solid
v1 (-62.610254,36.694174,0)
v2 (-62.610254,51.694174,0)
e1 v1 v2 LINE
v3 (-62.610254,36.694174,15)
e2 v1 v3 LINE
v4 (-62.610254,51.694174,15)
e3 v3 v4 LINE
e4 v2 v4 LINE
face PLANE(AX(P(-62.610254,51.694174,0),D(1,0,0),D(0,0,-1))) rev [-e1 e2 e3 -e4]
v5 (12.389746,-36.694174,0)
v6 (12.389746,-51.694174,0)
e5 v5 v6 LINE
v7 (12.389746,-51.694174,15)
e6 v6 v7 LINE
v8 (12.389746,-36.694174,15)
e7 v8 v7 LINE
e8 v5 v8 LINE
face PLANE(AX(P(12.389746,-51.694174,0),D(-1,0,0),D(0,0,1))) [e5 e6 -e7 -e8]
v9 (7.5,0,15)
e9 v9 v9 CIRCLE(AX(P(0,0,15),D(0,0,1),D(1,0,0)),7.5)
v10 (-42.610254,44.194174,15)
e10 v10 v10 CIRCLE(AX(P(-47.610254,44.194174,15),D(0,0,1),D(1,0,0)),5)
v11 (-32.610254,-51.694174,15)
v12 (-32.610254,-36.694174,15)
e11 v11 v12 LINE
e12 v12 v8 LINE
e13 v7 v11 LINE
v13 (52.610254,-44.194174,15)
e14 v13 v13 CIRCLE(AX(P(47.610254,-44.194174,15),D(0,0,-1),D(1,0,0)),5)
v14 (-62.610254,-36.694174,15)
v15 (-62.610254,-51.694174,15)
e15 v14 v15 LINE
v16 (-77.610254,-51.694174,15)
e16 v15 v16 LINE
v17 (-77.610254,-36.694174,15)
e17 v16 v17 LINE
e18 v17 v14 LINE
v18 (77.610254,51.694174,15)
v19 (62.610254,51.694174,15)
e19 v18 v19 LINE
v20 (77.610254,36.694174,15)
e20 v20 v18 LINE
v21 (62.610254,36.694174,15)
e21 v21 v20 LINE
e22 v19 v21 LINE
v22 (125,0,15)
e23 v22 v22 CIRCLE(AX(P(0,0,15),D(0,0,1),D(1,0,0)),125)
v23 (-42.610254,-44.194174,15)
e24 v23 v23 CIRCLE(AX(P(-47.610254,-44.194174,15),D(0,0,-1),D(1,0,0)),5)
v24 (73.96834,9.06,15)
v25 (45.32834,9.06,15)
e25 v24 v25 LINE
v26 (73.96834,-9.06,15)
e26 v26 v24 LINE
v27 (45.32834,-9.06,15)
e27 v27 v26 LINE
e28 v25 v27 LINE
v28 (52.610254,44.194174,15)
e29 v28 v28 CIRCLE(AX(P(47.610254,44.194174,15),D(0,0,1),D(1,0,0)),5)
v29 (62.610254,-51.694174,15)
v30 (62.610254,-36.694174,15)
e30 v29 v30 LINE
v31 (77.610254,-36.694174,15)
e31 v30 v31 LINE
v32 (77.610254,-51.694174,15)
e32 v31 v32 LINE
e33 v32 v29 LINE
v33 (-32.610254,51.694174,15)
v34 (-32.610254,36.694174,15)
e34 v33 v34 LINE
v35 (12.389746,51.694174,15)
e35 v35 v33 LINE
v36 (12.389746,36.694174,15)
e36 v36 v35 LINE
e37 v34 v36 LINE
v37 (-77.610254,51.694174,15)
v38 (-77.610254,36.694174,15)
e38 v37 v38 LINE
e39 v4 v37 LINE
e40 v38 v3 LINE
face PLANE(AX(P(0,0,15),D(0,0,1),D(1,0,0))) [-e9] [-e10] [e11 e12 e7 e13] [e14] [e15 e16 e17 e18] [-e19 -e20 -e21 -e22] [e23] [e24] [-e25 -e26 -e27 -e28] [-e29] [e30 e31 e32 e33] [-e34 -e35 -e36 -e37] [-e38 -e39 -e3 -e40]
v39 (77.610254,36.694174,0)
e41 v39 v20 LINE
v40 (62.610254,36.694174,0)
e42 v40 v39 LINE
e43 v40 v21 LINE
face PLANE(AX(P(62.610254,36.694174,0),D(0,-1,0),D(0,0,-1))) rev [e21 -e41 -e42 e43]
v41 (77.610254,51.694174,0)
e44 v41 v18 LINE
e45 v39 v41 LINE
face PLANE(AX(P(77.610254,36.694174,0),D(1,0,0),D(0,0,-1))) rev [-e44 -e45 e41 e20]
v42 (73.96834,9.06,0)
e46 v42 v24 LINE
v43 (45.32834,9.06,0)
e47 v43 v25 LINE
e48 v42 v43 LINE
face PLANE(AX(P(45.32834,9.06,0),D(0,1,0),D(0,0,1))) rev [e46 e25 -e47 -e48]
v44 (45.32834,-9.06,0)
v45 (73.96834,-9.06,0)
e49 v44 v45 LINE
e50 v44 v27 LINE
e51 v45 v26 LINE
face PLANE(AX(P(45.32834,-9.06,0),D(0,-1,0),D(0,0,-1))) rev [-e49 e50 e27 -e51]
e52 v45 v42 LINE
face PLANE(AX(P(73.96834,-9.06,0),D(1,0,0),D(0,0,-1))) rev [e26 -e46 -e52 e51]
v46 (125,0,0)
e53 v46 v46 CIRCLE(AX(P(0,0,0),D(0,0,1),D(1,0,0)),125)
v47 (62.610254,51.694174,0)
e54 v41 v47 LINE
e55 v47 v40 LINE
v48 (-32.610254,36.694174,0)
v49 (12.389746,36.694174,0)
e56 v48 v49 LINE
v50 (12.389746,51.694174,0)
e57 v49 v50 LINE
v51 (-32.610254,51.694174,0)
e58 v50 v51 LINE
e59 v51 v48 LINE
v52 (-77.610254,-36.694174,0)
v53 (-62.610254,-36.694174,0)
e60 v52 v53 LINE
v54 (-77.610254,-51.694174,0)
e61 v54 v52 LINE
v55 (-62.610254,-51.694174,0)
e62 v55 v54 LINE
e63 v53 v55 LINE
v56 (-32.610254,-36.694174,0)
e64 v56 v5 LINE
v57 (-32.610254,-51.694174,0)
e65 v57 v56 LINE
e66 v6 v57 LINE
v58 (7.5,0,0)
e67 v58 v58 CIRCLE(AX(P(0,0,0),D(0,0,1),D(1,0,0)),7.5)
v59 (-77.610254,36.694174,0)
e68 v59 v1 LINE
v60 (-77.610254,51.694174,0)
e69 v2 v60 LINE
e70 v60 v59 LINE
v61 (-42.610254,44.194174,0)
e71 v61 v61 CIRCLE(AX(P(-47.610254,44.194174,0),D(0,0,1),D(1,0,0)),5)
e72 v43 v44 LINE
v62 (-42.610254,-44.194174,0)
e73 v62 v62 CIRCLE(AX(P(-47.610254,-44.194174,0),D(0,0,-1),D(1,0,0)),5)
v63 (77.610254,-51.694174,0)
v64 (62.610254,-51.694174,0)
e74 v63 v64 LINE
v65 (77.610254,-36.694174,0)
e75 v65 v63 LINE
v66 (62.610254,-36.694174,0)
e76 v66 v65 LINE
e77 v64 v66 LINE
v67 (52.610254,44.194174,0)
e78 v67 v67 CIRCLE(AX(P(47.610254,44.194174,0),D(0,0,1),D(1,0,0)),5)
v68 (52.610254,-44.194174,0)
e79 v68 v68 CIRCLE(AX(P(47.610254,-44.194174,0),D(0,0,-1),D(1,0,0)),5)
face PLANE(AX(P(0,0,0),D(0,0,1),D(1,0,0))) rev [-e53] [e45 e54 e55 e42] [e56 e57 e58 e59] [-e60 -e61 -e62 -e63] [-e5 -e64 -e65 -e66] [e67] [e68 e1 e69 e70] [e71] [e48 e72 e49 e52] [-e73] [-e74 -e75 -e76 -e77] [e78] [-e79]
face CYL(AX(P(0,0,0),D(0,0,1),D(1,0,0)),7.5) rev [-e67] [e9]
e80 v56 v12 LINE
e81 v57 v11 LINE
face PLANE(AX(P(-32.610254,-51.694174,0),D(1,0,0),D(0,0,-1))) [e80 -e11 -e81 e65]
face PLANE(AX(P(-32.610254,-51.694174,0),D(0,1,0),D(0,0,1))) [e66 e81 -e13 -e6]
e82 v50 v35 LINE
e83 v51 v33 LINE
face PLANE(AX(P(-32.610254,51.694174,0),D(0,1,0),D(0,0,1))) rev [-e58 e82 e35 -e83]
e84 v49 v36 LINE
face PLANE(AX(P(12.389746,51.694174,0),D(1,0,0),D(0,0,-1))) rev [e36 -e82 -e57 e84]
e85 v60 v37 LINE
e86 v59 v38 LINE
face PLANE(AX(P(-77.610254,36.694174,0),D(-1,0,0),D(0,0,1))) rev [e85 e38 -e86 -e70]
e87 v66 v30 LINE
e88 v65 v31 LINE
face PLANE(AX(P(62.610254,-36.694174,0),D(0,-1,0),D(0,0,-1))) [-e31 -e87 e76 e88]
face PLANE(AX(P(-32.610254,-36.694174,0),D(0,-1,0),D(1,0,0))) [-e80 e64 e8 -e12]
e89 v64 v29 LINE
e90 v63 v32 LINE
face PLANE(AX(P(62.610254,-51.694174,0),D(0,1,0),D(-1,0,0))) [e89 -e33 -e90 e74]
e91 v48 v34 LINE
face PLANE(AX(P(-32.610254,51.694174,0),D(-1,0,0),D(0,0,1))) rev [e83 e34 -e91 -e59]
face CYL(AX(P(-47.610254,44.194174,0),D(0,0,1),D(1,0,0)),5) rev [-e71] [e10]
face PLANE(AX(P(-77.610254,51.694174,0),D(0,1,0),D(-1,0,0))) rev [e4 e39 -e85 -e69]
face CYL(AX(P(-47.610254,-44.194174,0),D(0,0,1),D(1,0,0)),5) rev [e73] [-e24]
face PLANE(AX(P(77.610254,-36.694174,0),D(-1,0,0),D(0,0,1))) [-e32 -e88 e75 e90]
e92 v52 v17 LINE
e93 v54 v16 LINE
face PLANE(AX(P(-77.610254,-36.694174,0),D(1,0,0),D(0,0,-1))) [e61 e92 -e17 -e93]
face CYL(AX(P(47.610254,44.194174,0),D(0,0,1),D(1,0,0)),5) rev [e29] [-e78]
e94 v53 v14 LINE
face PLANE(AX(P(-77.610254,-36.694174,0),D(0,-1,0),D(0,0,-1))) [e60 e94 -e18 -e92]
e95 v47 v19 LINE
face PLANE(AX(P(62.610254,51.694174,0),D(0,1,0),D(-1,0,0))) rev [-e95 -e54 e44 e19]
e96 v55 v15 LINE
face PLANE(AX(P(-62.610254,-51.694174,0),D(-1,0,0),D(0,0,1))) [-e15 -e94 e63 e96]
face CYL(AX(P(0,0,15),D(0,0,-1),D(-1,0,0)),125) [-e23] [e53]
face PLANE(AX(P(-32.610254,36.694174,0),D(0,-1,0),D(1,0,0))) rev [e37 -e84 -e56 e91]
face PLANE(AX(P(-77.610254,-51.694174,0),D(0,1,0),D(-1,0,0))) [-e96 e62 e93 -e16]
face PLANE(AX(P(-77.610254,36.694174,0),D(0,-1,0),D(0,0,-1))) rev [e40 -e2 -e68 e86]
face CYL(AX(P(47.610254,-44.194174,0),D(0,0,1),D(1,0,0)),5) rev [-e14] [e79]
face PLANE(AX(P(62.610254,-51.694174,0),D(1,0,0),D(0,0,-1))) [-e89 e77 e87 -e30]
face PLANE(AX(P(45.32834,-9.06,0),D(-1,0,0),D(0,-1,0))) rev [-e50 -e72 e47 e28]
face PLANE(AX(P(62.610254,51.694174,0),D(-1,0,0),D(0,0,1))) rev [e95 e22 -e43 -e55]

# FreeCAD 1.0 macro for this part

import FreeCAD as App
import Part
import Sketcher

V = App.Vector
Q = App.Units.Quantity

doc = App.newDocument("Part")
body = doc.addObject("PartDesign::Body", "Body")

# Sketch on XY plane
sketch1 = doc.addObject("Sketcher::SketchObject", "Sketch")
body.addObject(sketch1)
sketch1.AttachmentSupport = (doc.XY_Plane, [""])
sketch1.MapMode = "FlatFace"
sketch1.addGeometry(Part.Circle(V(0, 0, 0), V(0, 0, 1), 125), False)
sketch1.addConstraint(Sketcher.Constraint("Coincident", 0, 3, -1, 1))
sketch1.addConstraint(Sketcher.Constraint("Diameter", 0, Q("250 mm")))
pad1 = doc.addObject("PartDesign::Pad", "Pad")
body.addObject(pad1)
pad1.Profile = sketch1
pad1.Length = 15

# Sketch on XY plane
sketch2 = doc.addObject("Sketcher::SketchObject", "Sketch001")
body.addObject(sketch2)
sketch2.AttachmentSupport = (doc.XY_Plane, [""])
sketch2.MapMode = "FlatFace"
sketch2.AttachmentOffset = App.Placement(V(0, 0, 15), App.Rotation())
sketch2.addGeometry(Part.Circle(V(0, 0, 0), V(0, 0, 1), 8), False)
sketch2.addGeometry(Part.Circle(V(48, 44, 0), V(0, 0, 1), 5), False)
sketch2.addGeometry(Part.Circle(V(-48, 44, 0), V(0, 0, 1), 5), False)
sketch2.addGeometry(Part.LineSegment(V(63, 52, 0), V(63, 37, 0)), False)
sketch2.addGeometry(Part.LineSegment(V(63, 37, 0), V(78, 37, 0)), False)
sketch2.addGeometry(Part.LineSegment(V(78, 37, 0), V(78, 52, 0)), False)
sketch2.addGeometry(Part.LineSegment(V(78, 52, 0), V(63, 52, 0)), False)
sketch2.addGeometry(Part.LineSegment(V(-78, 52, 0), V(-78, 37, 0)), False)
sketch2.addGeometry(Part.LineSegment(V(-78, 37, 0), V(-63, 37, 0)), False)
sketch2.addGeometry(Part.LineSegment(V(-63, 37, 0), V(-63, 52, 0)), False)
sketch2.addGeometry(Part.LineSegment(V(-63, 52, 0), V(-78, 52, 0)), False)
sketch2.addGeometry(Part.LineSegment(V(45, 9, 0), V(45, -9, 0)), False)
sketch2.addGeometry(Part.LineSegment(V(45, -9, 0), V(74, -9, 0)), False)
sketch2.addGeometry(Part.LineSegment(V(74, -9, 0), V(74, 9, 0)), False)
sketch2.addGeometry(Part.LineSegment(V(74, 9, 0), V(45, 9, 0)), False)
sketch2.addGeometry(Part.LineSegment(V(-33, 52, 0), V(-33, 37, 0)), False)
sketch2.addGeometry(Part.LineSegment(V(-33, 37, 0), V(12, 37, 0)), False)
sketch2.addGeometry(Part.LineSegment(V(12, 37, 0), V(12, 52, 0)), False)
sketch2.addGeometry(Part.LineSegment(V(12, 52, 0), V(-33, 52, 0)), False)
sketch2.addConstraint(Sketcher.Constraint("Coincident", 3, 2, 4, 1))
sketch2.addConstraint(Sketcher.Constraint("Coincident", 4, 2, 5, 1))
sketch2.addConstraint(Sketcher.Constraint("Coincident", 5, 2, 6, 1))
sketch2.addConstraint(Sketcher.Constraint("Coincident", 6, 2, 3, 1))
sketch2.addConstraint(Sketcher.Constraint("Coincident", 7, 2, 8, 1))
sketch2.addConstraint(Sketcher.Constraint("Coincident", 8, 2, 9, 1))
sketch2.addConstraint(Sketcher.Constraint("Coincident", 9, 2, 10, 1))
sketch2.addConstraint(Sketcher.Constraint("Coincident", 10, 2, 7, 1))
sketch2.addConstraint(Sketcher.Constraint("Coincident", 11, 2, 12, 1))
sketch2.addConstraint(Sketcher.Constraint("Coincident", 12, 2, 13, 1))
sketch2.addConstraint(Sketcher.Constraint("Coincident", 13, 2, 14, 1))
sketch2.addConstraint(Sketcher.Constraint("Coincident", 14, 2, 11, 1))
sketch2.addConstraint(Sketcher.Constraint("Coincident", 15, 2, 16, 1))
sketch2.addConstraint(Sketcher.Constraint("Coincident", 16, 2, 17, 1))
sketch2.addConstraint(Sketcher.Constraint("Coincident", 17, 2, 18, 1))
sketch2.addConstraint(Sketcher.Constraint("Coincident", 18, 2, 15, 1))
sketch2.addConstraint(Sketcher.Constraint("Vertical", 3))
sketch2.addConstraint(Sketcher.Constraint("Horizontal", 4))
sketch2.addConstraint(Sketcher.Constraint("Vertical", 5))
sketch2.addConstraint(Sketcher.Constraint("Horizontal", 6))
sketch2.addConstraint(Sketcher.Constraint("Vertical", 7))
sketch2.addConstraint(Sketcher.Constraint("Horizontal", 8))
sketch2.addConstraint(Sketcher.Constraint("Vertical", 9))
sketch2.addConstraint(Sketcher.Constraint("Horizontal", 10))
sketch2.addConstraint(Sketcher.Constraint("Vertical", 11))
sketch2.addConstraint(Sketcher.Constraint("Horizontal", 12))
sketch2.addConstraint(Sketcher.Constraint("Vertical", 13))
sketch2.addConstraint(Sketcher.Constraint("Horizontal", 14))
sketch2.addConstraint(Sketcher.Constraint("Vertical", 15))
sketch2.addConstraint(Sketcher.Constraint("Horizontal", 16))
sketch2.addConstraint(Sketcher.Constraint("Vertical", 17))
sketch2.addConstraint(Sketcher.Constraint("Horizontal", 18))
sketch2.addConstraint(Sketcher.Constraint("Coincident", 0, 3, -1, 1))
sketch2.addConstraint(Sketcher.Constraint("Equal", 1, 2))
sketch2.addConstraint(Sketcher.Constraint("Symmetric", 1, 3, 2, 3, -2))
sketch2.addConstraint(Sketcher.Constraint("Symmetric", 4, 2, 7, 2, -2))
sketch2.addConstraint(Sketcher.Constraint("Symmetric", 6, 2, 9, 2, -2))
sketch2.addConstraint(Sketcher.Constraint("Horizontal", 8, 2, 15, 2))
sketch2.addConstraint(Sketcher.Constraint("Horizontal", 10, 2, 17, 2))
sketch2.addConstraint(Sketcher.Constraint("Equal", 10, 3))
sketch2.addConstraint(Sketcher.Constraint("Diameter", 0, Q("15 mm")))
sketch2.addConstraint(Sketcher.Constraint("Diameter", 1, Q("10 mm")))
sketch2.addConstraint(Sketcher.Constraint("DistanceX", 4, 1, 4, 2, Q("15 mm")))
sketch2.addConstraint(Sketcher.Constraint("DistanceX", 16, 1, 16, 2, Q("45 mm")))
sketch2.addConstraint(Sketcher.Constraint("DistanceX", 1, 3, 3, 2, Q("15 mm")))
sketch2.addConstraint(Sketcher.Constraint("DistanceX", 2, 3, 15, 2, Q("15 mm")))
sketch2.addConstraint(Sketcher.Constraint("DistanceX", 12, 1, 12, 2, Q("28.64 mm")))
sketch2.addConstraint(Sketcher.Constraint("DistanceY", 11, 2, 11, 1, Q("18.12 mm")))
sketch2.addConstraint(Sketcher.Constraint("DistanceY", 3, 2, 1, 3, Q("7.5 mm")))
sketch2.addConstraint(Sketcher.Constraint("DistanceY", 11, 2, -1, 1, Q("9.06 mm")))
sketch2.addConstraint(Sketcher.Constraint("DistanceX", -1, 1, 11, 2, Q("45.32834 mm")))
sketch2.addConstraint(Sketcher.Constraint("DistanceX", -1, 1, 1, 3, Q("47.610254 mm")))
sketch2.addConstraint(Sketcher.Constraint("DistanceY", -1, 1, 1, 3, Q("44.194174 mm")))
pocket1 = doc.addObject("PartDesign::Pocket", "Pocket")
body.addObject(pocket1)
pocket1.Profile = sketch2
pocket1.Type = "ThroughAll"
doc.recompute()

mirrored = doc.addObject("PartDesign::Mirrored", "Mirrored")
body.addObject(mirrored)
mirrored.Originals = [pocket1]
mirrored.MirrorPlane = (doc.XZ_Plane, [""])
body.Tip = mirrored

doc.recompute()
